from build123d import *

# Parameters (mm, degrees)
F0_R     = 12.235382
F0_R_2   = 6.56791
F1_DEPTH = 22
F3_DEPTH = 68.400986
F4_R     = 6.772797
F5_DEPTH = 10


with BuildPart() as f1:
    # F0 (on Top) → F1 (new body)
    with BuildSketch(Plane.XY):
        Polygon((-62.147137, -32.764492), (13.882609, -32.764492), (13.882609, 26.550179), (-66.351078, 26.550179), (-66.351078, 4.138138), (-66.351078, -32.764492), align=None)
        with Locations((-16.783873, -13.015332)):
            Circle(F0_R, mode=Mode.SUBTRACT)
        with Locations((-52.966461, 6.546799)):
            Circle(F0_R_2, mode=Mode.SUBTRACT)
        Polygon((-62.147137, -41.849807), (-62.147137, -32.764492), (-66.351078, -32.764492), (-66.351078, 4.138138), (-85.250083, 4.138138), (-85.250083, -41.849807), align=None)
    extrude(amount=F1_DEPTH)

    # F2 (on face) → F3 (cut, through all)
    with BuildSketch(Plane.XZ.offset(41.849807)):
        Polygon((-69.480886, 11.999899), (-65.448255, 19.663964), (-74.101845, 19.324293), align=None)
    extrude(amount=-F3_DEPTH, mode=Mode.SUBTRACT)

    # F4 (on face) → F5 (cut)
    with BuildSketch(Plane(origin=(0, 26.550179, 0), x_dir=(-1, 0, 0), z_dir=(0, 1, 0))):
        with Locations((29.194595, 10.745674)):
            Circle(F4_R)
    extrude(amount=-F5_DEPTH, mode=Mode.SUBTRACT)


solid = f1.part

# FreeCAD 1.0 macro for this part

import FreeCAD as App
import Part
import Sketcher
Q = App.Units.Quantity


def add_polygon(sketch, points):
    """Adds a closed chain of lines whose ends are joined by coincident constraints."""
    first, n = sketch.GeometryCount, len(points)
    for a, b in zip(points, points[1:] + points[:1]):
        sketch.addGeometry(Part.LineSegment(App.Vector(*a, 0), App.Vector(*b, 0)), False)
    for i in range(n):
        sketch.addConstraint(Sketcher.Constraint("Coincident", first + i, 2, first + (i + 1) % n, 1))

doc = App.newDocument("Part")
body = doc.addObject("PartDesign::Body", "Body")

sketch1 = body.newObject("Sketcher::SketchObject", "Sketch")
sketch1.AttachmentSupport = (doc.getObject("XY_Plane"), [""])
sketch1.MapMode = "FlatFace"
add_polygon(sketch1, [(13.882609, -32.764492), (13.882609, 26.550179), (-66.351078, 26.550179), (-66.351078, 4.138138), (-85.250083, 4.138138), (-85.250083, -41.849807), (-62.147137, -41.849807), (-62.147137, -32.764492)])
sketch1.addGeometry(Part.Circle(App.Vector(-16.783873, -13.015332, 0), App.Vector(0, 0, 1), 12.235382), False)
sketch1.addGeometry(Part.Circle(App.Vector(-52.966461, 6.546799, 0), App.Vector(0, 0, 1), 6.56791), False)
sketch1.addConstraint(Sketcher.Constraint("Vertical", 0))
sketch1.addConstraint(Sketcher.Constraint("Horizontal", 1))
sketch1.addConstraint(Sketcher.Constraint("Vertical", 2))
sketch1.addConstraint(Sketcher.Constraint("Horizontal", 3))
sketch1.addConstraint(Sketcher.Constraint("Vertical", 4))
sketch1.addConstraint(Sketcher.Constraint("Horizontal", 5))
sketch1.addConstraint(Sketcher.Constraint("Vertical", 6))
sketch1.addConstraint(Sketcher.Constraint("Horizontal", 7))
sketch1.addConstraint(Sketcher.Constraint("Diameter", 9, Q("13.13582 mm")))
sketch1.addConstraint(Sketcher.Constraint("Diameter", 8, Q("24.470764 mm")))
sketch1.addConstraint(Sketcher.Constraint("DistanceY", 0, 1, 0, 2, Q("59.314671 mm")))
sketch1.addConstraint(Sketcher.Constraint("DistanceY", 2, 2, 2, 1, Q("22.412041 mm")))
sketch1.addConstraint(Sketcher.Constraint("DistanceY", -1, 1, 9, 3, Q("6.546799 mm")))
sketch1.addConstraint(Sketcher.Constraint("DistanceX", 1, 2, 1, 1, Q("80.233687 mm")))
sketch1.addConstraint(Sketcher.Constraint("DistanceX", 3, 2, 3, 1, Q("18.899005 mm")))
sketch1.addConstraint(Sketcher.Constraint("DistanceX", 5, 1, 5, 2, Q("23.102946 mm")))
sketch1.addConstraint(Sketcher.Constraint("DistanceY", 4, 2, 4, 1, Q("45.987945 mm")))
sketch1.addConstraint(Sketcher.Constraint("DistanceX", 9, 3, -1, 1, Q("52.966461 mm")))
sketch1.addConstraint(Sketcher.Constraint("DistanceX", -1, 1, 0, 2, Q("13.882609 mm")))
sketch1.addConstraint(Sketcher.Constraint("DistanceY", -1, 1, 0, 2, Q("26.550179 mm")))
sketch1.addConstraint(Sketcher.Constraint("DistanceX", 9, 3, 8, 3, Q("36.182588 mm")))
sketch1.addConstraint(Sketcher.Constraint("DistanceY", 8, 3, 9, 3, Q("19.562131 mm")))
pad1 = body.newObject("PartDesign::Pad", "Pad")
pad1.Profile = sketch1
pad1.Length = 22

sketch2 = body.newObject("Sketcher::SketchObject", "Sketch001")
sketch2.AttachmentSupport = (doc.getObject("XZ_Plane"), [""])
sketch2.MapMode = "FlatFace"
sketch2.AttachmentOffset = App.Placement(App.Vector(0, 0, 41.849807), App.Rotation())
add_polygon(sketch2, [(-69.480886, 11.999899), (-65.448255, 19.663964), (-74.101845, 19.324293)])
sketch2.addConstraint(Sketcher.Constraint("Equal", 0, 1))
sketch2.addConstraint(Sketcher.Constraint("Equal", 1, 2))
sketch2.addConstraint(Sketcher.Constraint("DistanceY", -1, 1, 2, 2, Q("11.999899 mm")))
sketch2.addConstraint(Sketcher.Constraint("DistanceX", 1, 2, 0, 2, Q("8.65359 mm")))
sketch2.addConstraint(Sketcher.Constraint("DistanceY", 1, 2, 0, 2, Q("0.339671 mm")))
sketch2.addConstraint(Sketcher.Constraint("DistanceX", 0, 2, -1, 1, Q("65.448255 mm")))
pocket1 = body.newObject("PartDesign::Pocket", "Pocket")
pocket1.Profile = sketch2
pocket1.Type = "ThroughAll"

sketch3 = body.newObject("Sketcher::SketchObject", "Sketch002")
sketch3.AttachmentSupport = (doc.getObject("XZ_Plane"), [""])
sketch3.MapMode = "FlatFace"
sketch3.AttachmentOffset = App.Placement(App.Vector(0, 0, -26.550179), App.Rotation())
sketch3.addGeometry(Part.Circle(App.Vector(-29.194595, 10.745674, 0), App.Vector(0, 0, 1), 6.772797), False)
sketch3.addConstraint(Sketcher.Constraint("Diameter", 0, Q("13.545594 mm")))
sketch3.addConstraint(Sketcher.Constraint("DistanceX", 0, 3, -1, 1, Q("29.194595 mm")))
sketch3.addConstraint(Sketcher.Constraint("DistanceY", -1, 1, 0, 3, Q("10.745674 mm")))
pocket2 = body.newObject("PartDesign::Pocket", "Pocket001")
pocket2.Profile = sketch3
pocket2.Length = 10
pocket2.Reversed = True

doc.recompute()
